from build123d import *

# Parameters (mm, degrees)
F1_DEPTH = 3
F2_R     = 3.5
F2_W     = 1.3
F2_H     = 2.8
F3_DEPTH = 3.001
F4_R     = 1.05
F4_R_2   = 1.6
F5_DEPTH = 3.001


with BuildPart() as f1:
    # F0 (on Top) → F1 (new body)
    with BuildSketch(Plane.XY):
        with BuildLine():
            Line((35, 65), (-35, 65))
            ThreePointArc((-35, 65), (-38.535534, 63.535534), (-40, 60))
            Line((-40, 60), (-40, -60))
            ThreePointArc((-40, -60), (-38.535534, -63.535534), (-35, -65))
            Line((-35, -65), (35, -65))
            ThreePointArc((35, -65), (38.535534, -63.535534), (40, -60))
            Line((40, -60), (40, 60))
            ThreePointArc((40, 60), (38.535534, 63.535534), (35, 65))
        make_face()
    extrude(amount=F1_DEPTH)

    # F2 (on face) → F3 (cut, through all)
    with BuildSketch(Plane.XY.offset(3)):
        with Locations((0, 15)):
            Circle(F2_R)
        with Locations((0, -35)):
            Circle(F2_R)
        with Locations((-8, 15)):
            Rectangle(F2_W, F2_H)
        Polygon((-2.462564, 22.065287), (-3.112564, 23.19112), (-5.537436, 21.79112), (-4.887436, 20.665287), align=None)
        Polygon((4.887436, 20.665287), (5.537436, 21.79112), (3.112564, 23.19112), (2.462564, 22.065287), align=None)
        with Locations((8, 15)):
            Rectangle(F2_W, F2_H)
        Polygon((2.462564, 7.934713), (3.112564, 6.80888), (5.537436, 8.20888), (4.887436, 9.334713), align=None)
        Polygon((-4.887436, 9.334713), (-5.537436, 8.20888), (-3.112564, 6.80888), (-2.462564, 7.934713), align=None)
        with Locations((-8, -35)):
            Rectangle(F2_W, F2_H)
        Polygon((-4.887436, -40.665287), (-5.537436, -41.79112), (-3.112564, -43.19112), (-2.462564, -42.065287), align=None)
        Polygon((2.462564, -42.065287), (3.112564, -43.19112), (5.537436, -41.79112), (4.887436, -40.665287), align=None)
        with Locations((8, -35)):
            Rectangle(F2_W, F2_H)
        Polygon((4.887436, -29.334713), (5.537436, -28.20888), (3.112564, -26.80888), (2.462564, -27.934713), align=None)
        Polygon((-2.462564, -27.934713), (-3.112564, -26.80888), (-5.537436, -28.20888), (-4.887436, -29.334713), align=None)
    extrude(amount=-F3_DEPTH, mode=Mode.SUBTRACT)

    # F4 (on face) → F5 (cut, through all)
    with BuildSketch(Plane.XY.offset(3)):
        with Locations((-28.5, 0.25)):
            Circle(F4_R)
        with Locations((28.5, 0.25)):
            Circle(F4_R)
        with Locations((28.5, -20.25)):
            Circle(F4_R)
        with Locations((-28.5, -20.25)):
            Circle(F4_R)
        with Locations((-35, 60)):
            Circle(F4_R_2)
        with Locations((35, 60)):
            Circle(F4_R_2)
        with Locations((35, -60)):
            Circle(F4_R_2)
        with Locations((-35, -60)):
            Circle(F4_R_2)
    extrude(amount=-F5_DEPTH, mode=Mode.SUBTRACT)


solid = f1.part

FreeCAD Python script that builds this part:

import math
import FreeCAD as App
import Part
import Sketcher
Q = App.Units.Quantity

doc = App.newDocument("Part")
params = doc.addObject("Spreadsheet::Sheet", "Params")
for row, (alias, value) in enumerate([
    ("sketch1_radius", "5 mm"),
    ("sketch1_width", "70 mm"),
    ("sketch1_height", "120 mm"),
    ("pad1_length", "3 mm"),
    ("sketch2_diameter", "7 mm"),
    ("sketch2_width", "1.3 mm"),
    ("sketch2_height", "2.8 mm"),
    ("sketch2_length", "1.3 mm"),
    ("sketch2_length2", "2.800001 mm"),
    ("sketch3_diameter", "2.1 mm"),
    ("sketch3_diameter2", "3.2 mm"),
], start=1):
    params.set(f"A{row}", alias)
    params.set(f"B{row}", "=" + value)
    params.setAlias(f"B{row}", alias)

body = doc.addObject("PartDesign::Body", "Body")

sketch1 = body.newObject("Sketcher::SketchObject", "Sketch")
sketch1.AttachmentSupport = (doc.getObject("XY_Plane"), [""])
sketch1.MapMode = "FlatFace"
sketch1.addGeometry([
    Part.LineSegment(App.Vector(35, 65, 0), App.Vector(-35, 65, 0)),
    Part.ArcOfCircle(Part.Circle(App.Vector(-35, 60, 0), App.Vector(0, 0, 1), 5), math.radians(89.999996), math.radians(180.000004)),
    Part.LineSegment(App.Vector(-40, 60, 0), App.Vector(-40, -60, 0)),
    Part.ArcOfCircle(Part.Circle(App.Vector(-35, -60, 0), App.Vector(0, 0, 1), 5), math.radians(179.999996), math.radians(270.000004)),
    Part.LineSegment(App.Vector(-35, -65, 0), App.Vector(35, -65, 0)),
    Part.ArcOfCircle(Part.Circle(App.Vector(35, -60, 0), App.Vector(0, 0, 1), 5), math.radians(-90.000004), math.radians(0.000004)),
    Part.LineSegment(App.Vector(40, -60, 0), App.Vector(40, 60, 0)),
    Part.ArcOfCircle(Part.Circle(App.Vector(35, 60, 0), App.Vector(0, 0, 1), 5), math.radians(-0.000004), math.radians(90.000004)),
], False)
sketch1.addConstraint([
    Sketcher.Constraint("Tangent", 0, 2, 1, 1),
    Sketcher.Constraint("Tangent", 1, 2, 2, 1),
    Sketcher.Constraint("Tangent", 2, 2, 3, 1),
    Sketcher.Constraint("Tangent", 3, 2, 4, 1),
    Sketcher.Constraint("Tangent", 4, 2, 5, 1),
    Sketcher.Constraint("Tangent", 5, 2, 6, 1),
    Sketcher.Constraint("Tangent", 6, 2, 7, 1),
    Sketcher.Constraint("Tangent", 7, 2, 0, 1),
    Sketcher.Constraint("Horizontal", 0),
    Sketcher.Constraint("Vertical", 2),
    Sketcher.Constraint("Horizontal", 4),
    Sketcher.Constraint("Vertical", 6),
    Sketcher.Constraint("Equal", 1, 3),
    Sketcher.Constraint("Equal", 3, 5),
    Sketcher.Constraint("Equal", 5, 7),
    Sketcher.Constraint("Symmetric", 1, 3, 5, 3, -1, 1),
    Sketcher.Constraint("Radius", 1, Q("5 mm")),
    Sketcher.Constraint("DistanceX", 0, 2, 0, 1, Q("70 mm")),
    Sketcher.Constraint("DistanceY", 2, 2, 2, 1, Q("120 mm")),
])
sketch1.setExpression("Constraints[16]", "Params.sketch1_radius")
sketch1.setExpression("Constraints[17]", "Params.sketch1_width")
sketch1.setExpression("Constraints[18]", "Params.sketch1_height")
pad1 = body.newObject("PartDesign::Pad", "Pad")
pad1.Profile = sketch1
pad1.setExpression("Length", "Params.pad1_length")

sketch2 = body.newObject("Sketcher::SketchObject", "Sketch001")
sketch2.AttachmentSupport = (doc.getObject("XY_Plane"), [""])
sketch2.MapMode = "FlatFace"
sketch2.AttachmentOffset = App.Placement(App.Vector(0, 0, 3), App.Rotation())
sketch2.addGeometry([
    Part.Circle(App.Vector(0, 15, 0), App.Vector(0, 0, 1), 3.5),
    Part.Circle(App.Vector(0, -35, 0), App.Vector(0, 0, 1), 3.5),
    Part.LineSegment(App.Vector(-8.65, 16.4, 0), App.Vector(-8.65, 13.6, 0)),
    Part.LineSegment(App.Vector(-8.65, 13.6, 0), App.Vector(-7.35, 13.6, 0)),
    Part.LineSegment(App.Vector(-7.35, 13.6, 0), App.Vector(-7.35, 16.4, 0)),
    Part.LineSegment(App.Vector(-7.35, 16.4, 0), App.Vector(-8.65, 16.4, 0)),
    Part.LineSegment(App.Vector(-2.462564, 22.065287, 0), App.Vector(-3.112564, 23.19112, 0)),
    Part.LineSegment(App.Vector(-3.112564, 23.19112, 0), App.Vector(-5.537436, 21.79112, 0)),
    Part.LineSegment(App.Vector(-5.537436, 21.79112, 0), App.Vector(-4.887436, 20.665287, 0)),
    Part.LineSegment(App.Vector(-4.887436, 20.665287, 0), App.Vector(-2.462564, 22.065287, 0)),
    Part.LineSegment(App.Vector(4.887436, 20.665287, 0), App.Vector(5.537436, 21.79112, 0)),
    Part.LineSegment(App.Vector(5.537436, 21.79112, 0), App.Vector(3.112564, 23.19112, 0)),
    Part.LineSegment(App.Vector(3.112564, 23.19112, 0), App.Vector(2.462564, 22.065287, 0)),
    Part.LineSegment(App.Vector(2.462564, 22.065287, 0), App.Vector(4.887436, 20.665287, 0)),
    Part.LineSegment(App.Vector(7.35, 16.4, 0), App.Vector(7.35, 13.6, 0)),
    Part.LineSegment(App.Vector(7.35, 13.6, 0), App.Vector(8.65, 13.6, 0)),
    Part.LineSegment(App.Vector(8.65, 13.6, 0), App.Vector(8.65, 16.4, 0)),
    Part.LineSegment(App.Vector(8.65, 16.4, 0), App.Vector(7.35, 16.4, 0)),
    Part.LineSegment(App.Vector(2.462564, 7.934713, 0), App.Vector(3.112564, 6.80888, 0)),
    Part.LineSegment(App.Vector(3.112564, 6.80888, 0), App.Vector(5.537436, 8.20888, 0)),
    Part.LineSegment(App.Vector(5.537436, 8.20888, 0), App.Vector(4.887436, 9.334713, 0)),
    Part.LineSegment(App.Vector(4.887436, 9.334713, 0), App.Vector(2.462564, 7.934713, 0)),
    Part.LineSegment(App.Vector(-4.887436, 9.334713, 0), App.Vector(-5.537436, 8.20888, 0)),
    Part.LineSegment(App.Vector(-5.537436, 8.20888, 0), App.Vector(-3.112564, 6.80888, 0)),
    Part.LineSegment(App.Vector(-3.112564, 6.80888, 0), App.Vector(-2.462564, 7.934713, 0)),
    Part.LineSegment(App.Vector(-2.462564, 7.934713, 0), App.Vector(-4.887436, 9.334713, 0)),
    Part.LineSegment(App.Vector(-8.65, -33.6, 0), App.Vector(-8.65, -36.4, 0)),
    Part.LineSegment(App.Vector(-8.65, -36.4, 0), App.Vector(-7.35, -36.4, 0)),
    Part.LineSegment(App.Vector(-7.35, -36.4, 0), App.Vector(-7.35, -33.6, 0)),
    Part.LineSegment(App.Vector(-7.35, -33.6, 0), App.Vector(-8.65, -33.6, 0)),
    Part.LineSegment(App.Vector(-4.887436, -40.665287, 0), App.Vector(-5.537436, -41.79112, 0)),
    Part.LineSegment(App.Vector(-5.537436, -41.79112, 0), App.Vector(-3.112564, -43.19112, 0)),
    Part.LineSegment(App.Vector(-3.112564, -43.19112, 0), App.Vector(-2.462564, -42.065287, 0)),
    Part.LineSegment(App.Vector(-2.462564, -42.065287, 0), App.Vector(-4.887436, -40.665287, 0)),
    Part.LineSegment(App.Vector(2.462564, -42.065287, 0), App.Vector(3.112564, -43.19112, 0)),
    Part.LineSegment(App.Vector(3.112564, -43.19112, 0), App.Vector(5.537436, -41.79112, 0)),
    Part.LineSegment(App.Vector(5.537436, -41.79112, 0), App.Vector(4.887436, -40.665287, 0)),
    Part.LineSegment(App.Vector(4.887436, -40.665287, 0), App.Vector(2.462564, -42.065287, 0)),
    Part.LineSegment(App.Vector(7.35, -33.6, 0), App.Vector(7.35, -36.4, 0)),
    Part.LineSegment(App.Vector(7.35, -36.4, 0), App.Vector(8.65, -36.4, 0)),
    Part.LineSegment(App.Vector(8.65, -36.4, 0), App.Vector(8.65, -33.6, 0)),
    Part.LineSegment(App.Vector(8.65, -33.6, 0), App.Vector(7.35, -33.6, 0)),
    Part.LineSegment(App.Vector(4.887436, -29.334713, 0), App.Vector(5.537436, -28.20888, 0)),
    Part.LineSegment(App.Vector(5.537436, -28.20888, 0), App.Vector(3.112564, -26.80888, 0)),
    Part.LineSegment(App.Vector(3.112564, -26.80888, 0), App.Vector(2.462564, -27.934713, 0)),
    Part.LineSegment(App.Vector(2.462564, -27.934713, 0), App.Vector(4.887436, -29.334713, 0)),
    Part.LineSegment(App.Vector(-2.462564, -27.934713, 0), App.Vector(-3.112564, -26.80888, 0)),
    Part.LineSegment(App.Vector(-3.112564, -26.80888, 0), App.Vector(-5.537436, -28.20888, 0)),
    Part.LineSegment(App.Vector(-5.537436, -28.20888, 0), App.Vector(-4.887436, -29.334713, 0)),
    Part.LineSegment(App.Vector(-4.887436, -29.334713, 0), App.Vector(-2.462564, -27.934713, 0)),
], False)
sketch2.addConstraint([
    Sketcher.Constraint("Coincident", 2, 2, 3, 1),
    Sketcher.Constraint("Coincident", 3, 2, 4, 1),
    Sketcher.Constraint("Coincident", 4, 2, 5, 1),
    Sketcher.Constraint("Coincident", 5, 2, 2, 1),
    Sketcher.Constraint("Coincident", 6, 2, 7, 1),
    Sketcher.Constraint("Coincident", 7, 2, 8, 1),
    Sketcher.Constraint("Coincident", 8, 2, 9, 1),
    Sketcher.Constraint("Coincident", 9, 2, 6, 1),
    Sketcher.Constraint("Coincident", 10, 2, 11, 1),
    Sketcher.Constraint("Coincident", 11, 2, 12, 1),
    Sketcher.Constraint("Coincident", 12, 2, 13, 1),
    Sketcher.Constraint("Coincident", 13, 2, 10, 1),
    Sketcher.Constraint("Coincident", 14, 2, 15, 1),
    Sketcher.Constraint("Coincident", 15, 2, 16, 1),
    Sketcher.Constraint("Coincident", 16, 2, 17, 1),
    Sketcher.Constraint("Coincident", 17, 2, 14, 1),
    Sketcher.Constraint("Coincident", 18, 2, 19, 1),
    Sketcher.Constraint("Coincident", 19, 2, 20, 1),
    Sketcher.Constraint("Coincident", 20, 2, 21, 1),
    Sketcher.Constraint("Coincident", 21, 2, 18, 1),
    Sketcher.Constraint("Coincident", 22, 2, 23, 1),
    Sketcher.Constraint("Coincident", 23, 2, 24, 1),
    Sketcher.Constraint("Coincident", 24, 2, 25, 1),
    Sketcher.Constraint("Coincident", 25, 2, 22, 1),
    Sketcher.Constraint("Coincident", 26, 2, 27, 1),
    Sketcher.Constraint("Coincident", 27, 2, 28, 1),
    Sketcher.Constraint("Coincident", 28, 2, 29, 1),
    Sketcher.Constraint("Coincident", 29, 2, 26, 1),
    Sketcher.Constraint("Coincident", 30, 2, 31, 1),
    Sketcher.Constraint("Coincident", 31, 2, 32, 1),
    Sketcher.Constraint("Coincident", 32, 2, 33, 1),
    Sketcher.Constraint("Coincident", 33, 2, 30, 1),
    Sketcher.Constraint("Coincident", 34, 2, 35, 1),
    Sketcher.Constraint("Coincident", 35, 2, 36, 1),
    Sketcher.Constraint("Coincident", 36, 2, 37, 1),
    Sketcher.Constraint("Coincident", 37, 2, 34, 1),
    Sketcher.Constraint("Coincident", 38, 2, 39, 1),
    Sketcher.Constraint("Coincident", 39, 2, 40, 1),
    Sketcher.Constraint("Coincident", 40, 2, 41, 1),
    Sketcher.Constraint("Coincident", 41, 2, 38, 1),
    Sketcher.Constraint("Coincident", 42, 2, 43, 1),
    Sketcher.Constraint("Coincident", 43, 2, 44, 1),
    Sketcher.Constraint("Coincident", 44, 2, 45, 1),
    Sketcher.Constraint("Coincident", 45, 2, 42, 1),
    Sketcher.Constraint("Coincident", 46, 2, 47, 1),
    Sketcher.Constraint("Coincident", 47, 2, 48, 1),
    Sketcher.Constraint("Coincident", 48, 2, 49, 1),
    Sketcher.Constraint("Coincident", 49, 2, 46, 1),
    Sketcher.Constraint("Vertical", 2),
    Sketcher.Constraint("Horizontal", 3),
    Sketcher.Constraint("Vertical", 4),
    Sketcher.Constraint("Horizontal", 5),
    Sketcher.Constraint("Vertical", 14),
    Sketcher.Constraint("Horizontal", 15),
    Sketcher.Constraint("Vertical", 16),
    Sketcher.Constraint("Horizontal", 17),
    Sketcher.Constraint("Vertical", 26),
    Sketcher.Constraint("Horizontal", 27),
    Sketcher.Constraint("Vertical", 28),
    Sketcher.Constraint("Horizontal", 29),
    Sketcher.Constraint("Vertical", 38),
    Sketcher.Constraint("Horizontal", 39),
    Sketcher.Constraint("Vertical", 40),
    Sketcher.Constraint("Horizontal", 41),
    Sketcher.Constraint("Equal", 0, 1),
    Sketcher.Constraint("Symmetric", 7, 2, 10, 2, -2),
    Sketcher.Constraint("Symmetric", 6, 2, 11, 2, -2),
    Sketcher.Constraint("Symmetric", 9, 2, 12, 2, -2),
    Sketcher.Constraint("Symmetric", 8, 2, 13, 2, -2),
    Sketcher.Constraint("Symmetric", 3, 2, 14, 2, -2),
    Sketcher.Constraint("Symmetric", 5, 2, 16, 2, -2),
    Sketcher.Constraint("Symmetric", 19, 2, 22, 2, -2),
    Sketcher.Constraint("Symmetric", 18, 2, 23, 2, -2),
    Sketcher.Constraint("Symmetric", 21, 2, 24, 2, -2),
    Sketcher.Constraint("Symmetric", 20, 2, 25, 2, -2),
    Sketcher.Constraint("Symmetric", 31, 2, 34, 2, -2),
    Sketcher.Constraint("Symmetric", 30, 2, 35, 2, -2),
    Sketcher.Constraint("Symmetric", 33, 2, 36, 2, -2),
    Sketcher.Constraint("Symmetric", 32, 2, 37, 2, -2),
    Sketcher.Constraint("Symmetric", 27, 2, 38, 2, -2),
    Sketcher.Constraint("Symmetric", 29, 2, 40, 2, -2),
    Sketcher.Constraint("Symmetric", 43, 2, 46, 2, -2),
    Sketcher.Constraint("Symmetric", 42, 2, 47, 2, -2),
    Sketcher.Constraint("Symmetric", 45, 2, 48, 2, -2),
    Sketcher.Constraint("Symmetric", 44, 2, 49, 2, -2),
    Sketcher.Constraint("PointOnObject", 0, 3, -2),
    Sketcher.Constraint("PointOnObject", 1, 3, -2),
    Sketcher.Constraint("Perpendicular", 6, 7),
    Sketcher.Constraint("Perpendicular", 7, 8),
    Sketcher.Constraint("Perpendicular", 8, 9),
    Sketcher.Constraint("Perpendicular", 9, 18),
    Sketcher.Constraint("Perpendicular", 18, 19),
    Sketcher.Constraint("Perpendicular", 19, 20),
    Sketcher.Constraint("Perpendicular", 20, 21),
    Sketcher.Constraint("Perpendicular", 25, 30),
    Sketcher.Constraint("Perpendicular", 30, 31),
    Sketcher.Constraint("Perpendicular", 31, 32),
    Sketcher.Constraint("Perpendicular", 32, 33),
    Sketcher.Constraint("Perpendicular", 33, 42),
    Sketcher.Constraint("Perpendicular", 42, 43),
    Sketcher.Constraint("Perpendicular", 43, 44),
    Sketcher.Constraint("Perpendicular", 44, 45),
    Sketcher.Constraint("Vertical", 11, 2, 18, 2),
    Sketcher.Constraint("Vertical", 10, 2, 19, 2),
    Sketcher.Constraint("Vertical", 13, 2, 20, 2),
    Sketcher.Constraint("Vertical", 5, 2, 26, 2),
    Sketcher.Constraint("Vertical", 4, 2, 27, 2),
    Sketcher.Constraint("Vertical", 22, 2, 30, 2),
    Sketcher.Constraint("Vertical", 23, 2, 31, 2),
    Sketcher.Constraint("Vertical", 24, 2, 32, 2),
    Sketcher.Constraint("Vertical", 35, 2, 42, 2),
    Sketcher.Constraint("Vertical", 34, 2, 43, 2),
    Sketcher.Constraint("Vertical", 37, 2, 44, 2),
    Sketcher.Constraint("Equal", 16, 26),
    Sketcher.Constraint("Diameter", 0, Q("7 mm")),
    Sketcher.Constraint("Angle", 6, Q("120.000001 deg")),
    Sketcher.Constraint("DistanceX", 3, 1, 3, 2, Q("1.3 mm")),
    Sketcher.Constraint("DistanceY", 2, 2, 2, 1, Q("2.8 mm")),
    Sketcher.Constraint("DistanceY", -1, 1, 0, 3, Q("15 mm")),
    Sketcher.Constraint("DistanceY", 1, 3, -1, 1, Q("35 mm")),
    Sketcher.Constraint("DistanceX", 9, 2, 10, 2, Q("8 mm")),
    Sketcher.Constraint("Distance", 6, Q("1.3 mm")),
    Sketcher.Constraint("Distance", 7, Q("2.800001 mm")),
    Sketcher.Constraint("DistanceY", -1, 1, 2, 2, Q("13.6 mm")),
    Sketcher.Constraint("DistanceY", 26, 2, -1, 1, Q("36.4 mm")),
    Sketcher.Constraint("DistanceX", 2, 2, -1, 1, Q("8.65 mm")),
    Sketcher.Constraint("DistanceY", -1, 1, 6, 2, Q("23.19112 mm")),
    Sketcher.Constraint("DistanceY", -1, 1, 18, 2, Q("6.80888 mm")),
    Sketcher.Constraint("DistanceY", 30, 2, -1, 1, Q("41.79112 mm")),
    Sketcher.Constraint("DistanceY", 42, 2, -1, 1, Q("28.20888 mm")),
])
sketch2.setExpression("Constraints[114]", "Params.sketch2_diameter")
sketch2.setExpression("Constraints[116]", "Params.sketch2_width")
sketch2.setExpression("Constraints[117]", "Params.sketch2_height")
sketch2.setExpression("Constraints[121]", "Params.sketch2_length")
sketch2.setExpression("Constraints[122]", "Params.sketch2_length2")
pocket1 = body.newObject("PartDesign::Pocket", "Pocket")
pocket1.Profile = sketch2
pocket1.Type = "ThroughAll"

sketch3 = body.newObject("Sketcher::SketchObject", "Sketch002")
sketch3.AttachmentSupport = (doc.getObject("XY_Plane"), [""])
sketch3.MapMode = "FlatFace"
sketch3.AttachmentOffset = App.Placement(App.Vector(0, 0, 3), App.Rotation())
sketch3.addGeometry([
    Part.Circle(App.Vector(-28.5, 0.25, 0), App.Vector(0, 0, 1), 1.05),
    Part.Circle(App.Vector(28.5, 0.25, 0), App.Vector(0, 0, 1), 1.05),
    Part.Circle(App.Vector(28.5, -20.25, 0), App.Vector(0, 0, 1), 1.05),
    Part.Circle(App.Vector(-28.5, -20.25, 0), App.Vector(0, 0, 1), 1.05),
    Part.Circle(App.Vector(-35, 60, 0), App.Vector(0, 0, 1), 1.6),
    Part.Circle(App.Vector(35, 60, 0), App.Vector(0, 0, 1), 1.6),
    Part.Circle(App.Vector(35, -60, 0), App.Vector(0, 0, 1), 1.6),
    Part.Circle(App.Vector(-35, -60, 0), App.Vector(0, 0, 1), 1.6),
], False)
sketch3.addConstraint([
    Sketcher.Constraint("Equal", 0, 1),
    Sketcher.Constraint("Equal", 1, 2),
    Sketcher.Constraint("Equal", 2, 3),
    Sketcher.Constraint("Equal", 4, 5),
    Sketcher.Constraint("Equal", 5, 6),
    Sketcher.Constraint("Equal", 6, 7),
    Sketcher.Constraint("Symmetric", 4, 3, 6, 3, -1, 1),
    Sketcher.Constraint("Symmetric", 5, 3, 7, 3, -1, 1),
    Sketcher.Constraint("Symmetric", 0, 3, 1, 3, -2),
    Sketcher.Constraint("Symmetric", 2, 3, 3, 3, -2),
    Sketcher.Constraint("Symmetric", 4, 3, 5, 3, -2),
    Sketcher.Constraint("Vertical", 1, 3, 2, 3),
    Sketcher.Constraint("Diameter", 0, Q("2.1 mm")),
    Sketcher.Constraint("Diameter", 4, Q("3.2 mm")),
    Sketcher.Constraint("DistanceX", 4, 3, -1, 1, Q("35 mm")),
    Sketcher.Constraint("DistanceY", -1, 1, 4, 3, Q("60 mm")),
    Sketcher.Constraint("DistanceX", 0, 3, 1, 3, Q("57 mm")),
    Sketcher.Constraint("DistanceY", 2, 3, 1, 3, Q("20.5 mm")),
    Sketcher.Constraint("DistanceY", -1, 1, 0, 3, Q("0.25 mm")),
])
sketch3.setExpression("Constraints[12]", "Params.sketch3_diameter")
sketch3.setExpression("Constraints[13]", "Params.sketch3_diameter2")
pocket2 = body.newObject("PartDesign::Pocket", "Pocket001")
pocket2.Profile = sketch3
pocket2.Type = "ThroughAll"

doc.recompute()
